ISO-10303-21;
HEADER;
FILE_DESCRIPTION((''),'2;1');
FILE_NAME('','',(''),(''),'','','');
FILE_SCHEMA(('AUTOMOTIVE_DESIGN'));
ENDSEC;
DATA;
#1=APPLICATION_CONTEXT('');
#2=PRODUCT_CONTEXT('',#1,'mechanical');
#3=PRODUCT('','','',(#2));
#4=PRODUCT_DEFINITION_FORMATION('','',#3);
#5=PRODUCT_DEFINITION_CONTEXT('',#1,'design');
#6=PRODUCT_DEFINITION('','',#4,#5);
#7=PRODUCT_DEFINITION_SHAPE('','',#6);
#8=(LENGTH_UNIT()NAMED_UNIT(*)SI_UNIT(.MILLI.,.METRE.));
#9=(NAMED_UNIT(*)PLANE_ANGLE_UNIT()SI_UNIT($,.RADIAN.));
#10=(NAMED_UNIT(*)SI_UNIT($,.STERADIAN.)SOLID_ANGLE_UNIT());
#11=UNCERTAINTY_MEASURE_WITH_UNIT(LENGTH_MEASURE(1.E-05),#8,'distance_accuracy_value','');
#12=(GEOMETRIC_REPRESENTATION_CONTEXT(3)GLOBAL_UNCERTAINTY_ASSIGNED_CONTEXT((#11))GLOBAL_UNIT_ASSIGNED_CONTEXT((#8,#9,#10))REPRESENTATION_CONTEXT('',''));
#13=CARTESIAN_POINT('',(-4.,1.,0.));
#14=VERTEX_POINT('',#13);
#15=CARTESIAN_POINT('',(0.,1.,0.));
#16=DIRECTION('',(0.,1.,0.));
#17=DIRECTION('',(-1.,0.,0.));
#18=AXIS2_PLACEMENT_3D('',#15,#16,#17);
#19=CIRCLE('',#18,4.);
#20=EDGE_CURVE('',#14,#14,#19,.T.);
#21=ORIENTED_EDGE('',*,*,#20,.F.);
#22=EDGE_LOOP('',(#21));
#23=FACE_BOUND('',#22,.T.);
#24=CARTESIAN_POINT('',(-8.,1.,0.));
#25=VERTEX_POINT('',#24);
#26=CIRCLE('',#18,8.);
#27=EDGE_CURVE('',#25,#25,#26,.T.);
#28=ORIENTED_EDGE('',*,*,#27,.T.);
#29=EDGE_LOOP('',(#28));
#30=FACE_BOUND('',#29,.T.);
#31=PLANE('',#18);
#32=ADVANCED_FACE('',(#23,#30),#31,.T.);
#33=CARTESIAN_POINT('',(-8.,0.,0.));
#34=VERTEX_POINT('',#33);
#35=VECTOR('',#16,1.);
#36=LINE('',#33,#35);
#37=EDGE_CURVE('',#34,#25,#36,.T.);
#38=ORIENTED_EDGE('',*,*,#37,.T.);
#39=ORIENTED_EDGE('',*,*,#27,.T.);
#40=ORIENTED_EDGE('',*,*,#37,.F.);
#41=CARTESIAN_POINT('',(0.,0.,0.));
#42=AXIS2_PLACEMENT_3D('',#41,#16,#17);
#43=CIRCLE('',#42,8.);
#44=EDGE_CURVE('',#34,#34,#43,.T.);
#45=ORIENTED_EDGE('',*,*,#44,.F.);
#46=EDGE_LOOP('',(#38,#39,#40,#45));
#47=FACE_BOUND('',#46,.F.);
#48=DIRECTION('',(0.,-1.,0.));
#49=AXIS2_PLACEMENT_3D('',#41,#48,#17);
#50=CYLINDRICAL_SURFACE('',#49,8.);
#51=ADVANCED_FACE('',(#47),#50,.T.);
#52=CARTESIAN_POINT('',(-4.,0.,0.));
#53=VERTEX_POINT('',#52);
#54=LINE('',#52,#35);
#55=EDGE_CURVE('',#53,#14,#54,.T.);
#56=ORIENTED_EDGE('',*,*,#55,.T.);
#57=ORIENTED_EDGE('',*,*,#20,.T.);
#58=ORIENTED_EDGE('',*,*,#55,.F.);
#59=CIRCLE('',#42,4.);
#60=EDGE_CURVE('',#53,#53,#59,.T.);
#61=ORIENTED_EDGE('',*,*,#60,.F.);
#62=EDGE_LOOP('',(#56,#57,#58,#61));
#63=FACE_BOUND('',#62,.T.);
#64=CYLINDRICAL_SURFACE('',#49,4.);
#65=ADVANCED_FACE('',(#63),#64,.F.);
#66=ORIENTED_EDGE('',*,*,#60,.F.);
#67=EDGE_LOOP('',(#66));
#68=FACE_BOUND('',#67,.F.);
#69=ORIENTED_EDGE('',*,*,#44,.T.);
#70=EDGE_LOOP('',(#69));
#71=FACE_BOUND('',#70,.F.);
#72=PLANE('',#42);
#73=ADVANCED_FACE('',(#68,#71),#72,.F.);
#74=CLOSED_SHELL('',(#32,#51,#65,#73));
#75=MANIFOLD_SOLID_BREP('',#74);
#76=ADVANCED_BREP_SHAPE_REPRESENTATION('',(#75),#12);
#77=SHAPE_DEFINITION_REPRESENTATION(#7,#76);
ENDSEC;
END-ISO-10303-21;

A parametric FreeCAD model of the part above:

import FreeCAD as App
import Part
import Sketcher
from FreeCAD import Vector
Q = App.Units.Quantity

doc = App.newDocument("Part")
body = doc.addObject("PartDesign::Body", "Body")

# Sketch on XZ plane
sketch1 = doc.addObject("Sketcher::SketchObject", "Sketch")
body.addObject(sketch1)
sketch1.AttachmentSupport = (doc.XZ_Plane, [""])
sketch1.MapMode = "FlatFace"
sketch1.addGeometry([
    Part.Circle(Vector(0, 0, 0), Vector(0, 0, 1), 8),
    Part.Circle(Vector(0, 0, 0), Vector(0, 0, 1), 4),
], False)
sketch1.addConstraint([
    Sketcher.Constraint("Coincident", 0, 3, -1, 1),
    Sketcher.Constraint("Coincident", 1, 3, -1, 1),
    Sketcher.Constraint("Diameter", 0, Q("16 mm")),
    Sketcher.Constraint("Diameter", 1, Q("8 mm")),
])
pad1 = doc.addObject("PartDesign::Pad", "Pad")
body.addObject(pad1)
pad1.Profile = sketch1
pad1.Length = 1
pad1.Reversed = True

doc.recompute()
